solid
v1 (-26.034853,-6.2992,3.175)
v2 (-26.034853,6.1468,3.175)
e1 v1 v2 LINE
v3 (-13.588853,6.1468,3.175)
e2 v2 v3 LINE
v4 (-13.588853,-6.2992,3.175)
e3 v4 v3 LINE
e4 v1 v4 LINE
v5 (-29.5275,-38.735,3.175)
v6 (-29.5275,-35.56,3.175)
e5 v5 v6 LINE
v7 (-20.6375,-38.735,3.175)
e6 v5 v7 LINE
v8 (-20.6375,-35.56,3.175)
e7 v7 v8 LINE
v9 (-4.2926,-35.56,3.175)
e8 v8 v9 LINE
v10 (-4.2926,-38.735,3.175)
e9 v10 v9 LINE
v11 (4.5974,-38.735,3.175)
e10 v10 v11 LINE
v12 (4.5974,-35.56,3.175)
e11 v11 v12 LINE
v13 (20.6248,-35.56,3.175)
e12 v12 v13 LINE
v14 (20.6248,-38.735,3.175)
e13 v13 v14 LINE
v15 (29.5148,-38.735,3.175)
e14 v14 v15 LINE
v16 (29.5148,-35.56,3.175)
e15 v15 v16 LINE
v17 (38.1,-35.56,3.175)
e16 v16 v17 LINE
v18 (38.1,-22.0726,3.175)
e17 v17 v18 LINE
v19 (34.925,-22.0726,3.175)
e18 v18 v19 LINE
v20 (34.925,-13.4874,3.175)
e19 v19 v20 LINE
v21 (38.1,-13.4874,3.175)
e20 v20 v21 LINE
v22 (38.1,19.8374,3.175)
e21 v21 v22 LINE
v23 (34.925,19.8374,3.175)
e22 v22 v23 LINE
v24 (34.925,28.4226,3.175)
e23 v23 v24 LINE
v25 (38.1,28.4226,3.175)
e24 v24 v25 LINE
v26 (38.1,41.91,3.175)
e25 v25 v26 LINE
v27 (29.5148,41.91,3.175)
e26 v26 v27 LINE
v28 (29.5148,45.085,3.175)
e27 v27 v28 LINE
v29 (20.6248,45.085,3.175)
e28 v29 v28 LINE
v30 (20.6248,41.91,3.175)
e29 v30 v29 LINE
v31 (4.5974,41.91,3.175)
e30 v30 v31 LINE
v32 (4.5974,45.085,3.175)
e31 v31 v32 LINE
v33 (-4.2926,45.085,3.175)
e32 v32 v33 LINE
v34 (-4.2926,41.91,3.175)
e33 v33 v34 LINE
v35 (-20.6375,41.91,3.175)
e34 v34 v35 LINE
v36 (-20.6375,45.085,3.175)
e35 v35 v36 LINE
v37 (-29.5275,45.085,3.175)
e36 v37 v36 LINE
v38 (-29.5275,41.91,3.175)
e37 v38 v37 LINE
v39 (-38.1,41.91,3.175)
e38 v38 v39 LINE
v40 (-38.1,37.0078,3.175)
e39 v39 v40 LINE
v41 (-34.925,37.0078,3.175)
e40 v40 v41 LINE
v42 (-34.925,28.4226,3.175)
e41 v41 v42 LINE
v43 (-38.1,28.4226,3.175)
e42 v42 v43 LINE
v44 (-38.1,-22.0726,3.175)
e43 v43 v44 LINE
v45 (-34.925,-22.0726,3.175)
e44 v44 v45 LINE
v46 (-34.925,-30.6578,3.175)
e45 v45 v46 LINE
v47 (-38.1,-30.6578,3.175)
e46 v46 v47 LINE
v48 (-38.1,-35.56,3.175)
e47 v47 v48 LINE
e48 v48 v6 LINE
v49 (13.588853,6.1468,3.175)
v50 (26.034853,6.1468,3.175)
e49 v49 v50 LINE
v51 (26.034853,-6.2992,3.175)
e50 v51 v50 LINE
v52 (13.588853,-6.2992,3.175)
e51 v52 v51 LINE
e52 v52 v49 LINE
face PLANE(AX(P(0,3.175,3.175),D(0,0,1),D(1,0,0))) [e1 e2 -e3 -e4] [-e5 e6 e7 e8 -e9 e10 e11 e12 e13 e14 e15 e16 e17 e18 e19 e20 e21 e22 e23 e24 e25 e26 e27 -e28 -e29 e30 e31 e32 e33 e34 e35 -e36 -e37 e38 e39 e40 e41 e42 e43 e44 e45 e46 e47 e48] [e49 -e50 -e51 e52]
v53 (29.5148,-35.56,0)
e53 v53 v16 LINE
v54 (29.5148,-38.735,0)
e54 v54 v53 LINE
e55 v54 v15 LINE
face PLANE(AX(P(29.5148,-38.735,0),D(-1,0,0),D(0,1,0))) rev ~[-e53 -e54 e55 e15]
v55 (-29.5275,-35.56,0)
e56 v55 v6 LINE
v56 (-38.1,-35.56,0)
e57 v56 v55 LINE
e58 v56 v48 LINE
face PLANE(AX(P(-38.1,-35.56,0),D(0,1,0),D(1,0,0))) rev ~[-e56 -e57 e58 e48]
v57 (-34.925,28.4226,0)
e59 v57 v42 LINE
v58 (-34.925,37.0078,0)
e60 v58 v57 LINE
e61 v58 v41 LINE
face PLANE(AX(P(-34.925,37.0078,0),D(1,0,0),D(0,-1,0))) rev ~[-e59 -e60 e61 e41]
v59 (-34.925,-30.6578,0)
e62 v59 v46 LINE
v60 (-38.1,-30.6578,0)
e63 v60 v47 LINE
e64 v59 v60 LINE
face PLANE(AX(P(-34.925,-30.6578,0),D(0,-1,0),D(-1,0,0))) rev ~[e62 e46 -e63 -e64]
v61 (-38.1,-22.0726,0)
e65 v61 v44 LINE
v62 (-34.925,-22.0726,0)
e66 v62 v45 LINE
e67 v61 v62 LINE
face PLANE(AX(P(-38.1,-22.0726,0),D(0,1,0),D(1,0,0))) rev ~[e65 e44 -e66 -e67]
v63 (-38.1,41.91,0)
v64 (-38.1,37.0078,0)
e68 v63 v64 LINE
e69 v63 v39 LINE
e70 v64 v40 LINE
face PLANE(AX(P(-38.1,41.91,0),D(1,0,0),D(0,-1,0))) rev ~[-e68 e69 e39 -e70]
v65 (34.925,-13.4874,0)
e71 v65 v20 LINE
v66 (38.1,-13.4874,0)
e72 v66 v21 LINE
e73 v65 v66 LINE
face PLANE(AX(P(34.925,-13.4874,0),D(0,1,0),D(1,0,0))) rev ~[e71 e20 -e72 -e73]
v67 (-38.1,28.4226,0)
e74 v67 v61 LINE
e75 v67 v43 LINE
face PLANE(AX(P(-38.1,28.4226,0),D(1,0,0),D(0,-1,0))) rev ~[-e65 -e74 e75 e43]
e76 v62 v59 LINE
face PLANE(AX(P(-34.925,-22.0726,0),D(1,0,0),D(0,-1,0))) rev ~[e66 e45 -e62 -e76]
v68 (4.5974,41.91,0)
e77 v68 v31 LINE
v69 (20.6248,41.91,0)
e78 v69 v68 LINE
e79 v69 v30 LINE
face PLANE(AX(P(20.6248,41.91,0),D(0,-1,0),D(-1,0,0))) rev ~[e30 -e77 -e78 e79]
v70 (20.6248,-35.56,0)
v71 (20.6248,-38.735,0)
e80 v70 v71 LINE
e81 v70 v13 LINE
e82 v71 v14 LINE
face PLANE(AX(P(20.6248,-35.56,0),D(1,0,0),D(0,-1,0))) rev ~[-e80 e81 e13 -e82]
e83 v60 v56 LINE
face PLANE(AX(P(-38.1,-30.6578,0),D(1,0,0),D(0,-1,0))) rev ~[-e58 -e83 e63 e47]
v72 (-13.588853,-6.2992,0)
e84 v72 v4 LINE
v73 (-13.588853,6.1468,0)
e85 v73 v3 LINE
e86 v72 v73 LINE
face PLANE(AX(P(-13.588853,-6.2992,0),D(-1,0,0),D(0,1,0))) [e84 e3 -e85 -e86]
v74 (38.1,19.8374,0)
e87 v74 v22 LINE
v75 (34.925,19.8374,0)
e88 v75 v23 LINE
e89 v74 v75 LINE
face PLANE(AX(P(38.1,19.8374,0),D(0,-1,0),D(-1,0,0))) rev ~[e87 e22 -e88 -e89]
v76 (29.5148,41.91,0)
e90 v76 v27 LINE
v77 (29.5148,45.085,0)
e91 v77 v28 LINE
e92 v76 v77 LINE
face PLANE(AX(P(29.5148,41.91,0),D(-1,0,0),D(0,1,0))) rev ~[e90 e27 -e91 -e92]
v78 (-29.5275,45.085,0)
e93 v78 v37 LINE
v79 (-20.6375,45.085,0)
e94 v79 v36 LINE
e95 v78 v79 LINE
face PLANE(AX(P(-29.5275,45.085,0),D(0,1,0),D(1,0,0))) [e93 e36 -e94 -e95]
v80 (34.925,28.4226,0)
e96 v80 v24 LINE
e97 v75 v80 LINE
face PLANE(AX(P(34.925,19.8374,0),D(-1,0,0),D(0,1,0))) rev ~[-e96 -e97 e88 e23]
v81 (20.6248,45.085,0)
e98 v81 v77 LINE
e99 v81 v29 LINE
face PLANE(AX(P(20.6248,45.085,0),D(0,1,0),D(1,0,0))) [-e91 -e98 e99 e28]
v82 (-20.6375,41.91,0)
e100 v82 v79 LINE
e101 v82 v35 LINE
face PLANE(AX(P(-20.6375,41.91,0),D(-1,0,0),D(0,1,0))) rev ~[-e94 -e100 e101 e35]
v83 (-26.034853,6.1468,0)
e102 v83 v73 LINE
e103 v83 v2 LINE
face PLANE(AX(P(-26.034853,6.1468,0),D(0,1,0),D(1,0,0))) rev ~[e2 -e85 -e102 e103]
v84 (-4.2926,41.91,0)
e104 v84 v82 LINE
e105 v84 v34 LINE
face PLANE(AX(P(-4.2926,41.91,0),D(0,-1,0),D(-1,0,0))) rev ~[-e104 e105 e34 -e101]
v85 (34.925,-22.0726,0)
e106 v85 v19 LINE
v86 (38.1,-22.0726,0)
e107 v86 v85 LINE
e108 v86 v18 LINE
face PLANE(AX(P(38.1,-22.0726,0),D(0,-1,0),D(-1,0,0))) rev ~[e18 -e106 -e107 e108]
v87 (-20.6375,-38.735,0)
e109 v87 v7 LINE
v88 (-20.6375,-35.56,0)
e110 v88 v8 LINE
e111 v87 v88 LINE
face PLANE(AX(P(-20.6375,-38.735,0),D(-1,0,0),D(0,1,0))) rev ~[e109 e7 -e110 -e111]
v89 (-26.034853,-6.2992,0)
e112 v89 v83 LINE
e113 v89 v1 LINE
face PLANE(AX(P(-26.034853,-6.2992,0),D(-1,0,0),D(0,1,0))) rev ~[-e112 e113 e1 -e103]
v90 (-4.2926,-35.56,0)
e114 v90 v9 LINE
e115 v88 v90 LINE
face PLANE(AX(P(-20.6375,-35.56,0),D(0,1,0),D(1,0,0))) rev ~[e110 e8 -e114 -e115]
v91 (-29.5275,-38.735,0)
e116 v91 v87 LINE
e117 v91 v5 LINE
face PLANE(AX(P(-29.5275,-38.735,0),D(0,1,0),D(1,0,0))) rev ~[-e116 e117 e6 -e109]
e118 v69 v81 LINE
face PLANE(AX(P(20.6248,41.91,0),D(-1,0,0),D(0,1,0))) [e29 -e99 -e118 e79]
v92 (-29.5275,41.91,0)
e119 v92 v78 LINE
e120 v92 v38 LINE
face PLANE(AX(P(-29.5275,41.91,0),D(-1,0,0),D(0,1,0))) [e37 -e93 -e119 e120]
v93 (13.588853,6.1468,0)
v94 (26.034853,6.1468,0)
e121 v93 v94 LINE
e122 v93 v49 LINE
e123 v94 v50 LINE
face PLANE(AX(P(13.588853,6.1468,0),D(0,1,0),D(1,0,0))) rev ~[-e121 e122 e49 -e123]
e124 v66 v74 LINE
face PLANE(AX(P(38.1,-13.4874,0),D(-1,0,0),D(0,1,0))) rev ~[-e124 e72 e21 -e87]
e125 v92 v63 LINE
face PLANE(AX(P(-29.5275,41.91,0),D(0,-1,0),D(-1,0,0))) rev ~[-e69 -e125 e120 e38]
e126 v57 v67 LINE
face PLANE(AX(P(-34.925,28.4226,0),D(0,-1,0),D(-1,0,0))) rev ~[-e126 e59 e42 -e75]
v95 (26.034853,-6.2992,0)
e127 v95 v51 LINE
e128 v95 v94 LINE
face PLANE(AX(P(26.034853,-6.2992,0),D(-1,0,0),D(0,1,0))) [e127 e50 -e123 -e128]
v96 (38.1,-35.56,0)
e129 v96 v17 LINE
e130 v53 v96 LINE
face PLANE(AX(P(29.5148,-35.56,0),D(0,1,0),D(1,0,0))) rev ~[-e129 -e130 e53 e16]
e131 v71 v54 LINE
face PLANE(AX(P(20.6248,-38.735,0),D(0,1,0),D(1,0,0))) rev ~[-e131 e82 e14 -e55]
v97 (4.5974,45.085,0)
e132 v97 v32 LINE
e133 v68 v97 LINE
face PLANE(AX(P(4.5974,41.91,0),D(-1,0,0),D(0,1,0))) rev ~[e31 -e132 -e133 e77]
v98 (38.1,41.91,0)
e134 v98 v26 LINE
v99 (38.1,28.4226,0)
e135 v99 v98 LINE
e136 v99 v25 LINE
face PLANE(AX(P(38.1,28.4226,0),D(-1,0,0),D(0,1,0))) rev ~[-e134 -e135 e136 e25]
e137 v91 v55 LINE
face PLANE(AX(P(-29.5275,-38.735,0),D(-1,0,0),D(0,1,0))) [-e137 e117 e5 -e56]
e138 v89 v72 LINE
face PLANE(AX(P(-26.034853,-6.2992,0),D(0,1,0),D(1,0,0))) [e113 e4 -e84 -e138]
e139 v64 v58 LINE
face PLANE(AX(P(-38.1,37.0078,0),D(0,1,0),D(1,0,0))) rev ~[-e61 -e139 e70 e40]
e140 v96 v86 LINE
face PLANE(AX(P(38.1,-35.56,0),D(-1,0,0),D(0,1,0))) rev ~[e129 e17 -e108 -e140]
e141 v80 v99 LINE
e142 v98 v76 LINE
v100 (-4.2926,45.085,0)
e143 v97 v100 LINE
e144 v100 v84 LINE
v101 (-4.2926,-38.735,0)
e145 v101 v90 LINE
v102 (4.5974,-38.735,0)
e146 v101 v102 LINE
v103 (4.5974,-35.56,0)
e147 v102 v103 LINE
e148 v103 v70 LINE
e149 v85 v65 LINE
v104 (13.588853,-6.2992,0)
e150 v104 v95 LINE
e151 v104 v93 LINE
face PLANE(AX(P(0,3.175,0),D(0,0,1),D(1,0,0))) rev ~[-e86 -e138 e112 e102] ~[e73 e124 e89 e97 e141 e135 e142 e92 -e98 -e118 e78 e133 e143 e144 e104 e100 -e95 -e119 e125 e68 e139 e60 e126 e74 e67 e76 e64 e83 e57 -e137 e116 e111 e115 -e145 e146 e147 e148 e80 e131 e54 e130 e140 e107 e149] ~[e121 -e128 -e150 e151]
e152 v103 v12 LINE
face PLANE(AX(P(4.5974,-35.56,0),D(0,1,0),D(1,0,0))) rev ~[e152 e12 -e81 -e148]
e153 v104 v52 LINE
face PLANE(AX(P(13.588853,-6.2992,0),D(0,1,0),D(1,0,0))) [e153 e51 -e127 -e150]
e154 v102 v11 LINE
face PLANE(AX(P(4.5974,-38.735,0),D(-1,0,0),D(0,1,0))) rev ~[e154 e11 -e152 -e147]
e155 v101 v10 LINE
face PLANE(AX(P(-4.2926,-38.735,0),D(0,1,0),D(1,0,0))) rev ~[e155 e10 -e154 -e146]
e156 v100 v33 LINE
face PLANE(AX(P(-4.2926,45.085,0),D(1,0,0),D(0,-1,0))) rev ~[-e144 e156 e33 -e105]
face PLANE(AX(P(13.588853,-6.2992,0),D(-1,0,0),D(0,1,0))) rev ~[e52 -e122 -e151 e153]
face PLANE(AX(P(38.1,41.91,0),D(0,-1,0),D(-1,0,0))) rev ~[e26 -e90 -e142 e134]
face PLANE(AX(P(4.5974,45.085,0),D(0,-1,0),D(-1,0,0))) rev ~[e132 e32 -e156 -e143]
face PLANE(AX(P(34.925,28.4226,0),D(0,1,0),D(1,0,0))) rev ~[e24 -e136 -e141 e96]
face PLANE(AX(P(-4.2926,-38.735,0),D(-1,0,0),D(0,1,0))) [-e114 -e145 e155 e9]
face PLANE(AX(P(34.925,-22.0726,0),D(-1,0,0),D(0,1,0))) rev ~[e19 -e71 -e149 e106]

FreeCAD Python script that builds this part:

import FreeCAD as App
import Part
import Sketcher
from FreeCAD import Vector
Q = App.Units.Quantity

doc = App.newDocument("Part")
params = doc.addObject("Spreadsheet::Sheet", "Params")
for row, (alias, value) in enumerate([
    ("sketch1_width", "0.35 in"),
    ("sketch1_width2", "0.49 in"),
    ("sketch1_width3", "0.125 in"),
    ("sketch1_width4", "0.631 in"),
    ("sketch1_width5", "0.338 in"),
    ("pad1_length", "0.125 in"),
], start=1):
    params.set(f"A{row}", alias)
    params.set(f"B{row}", "=" + value)
    params.setAlias(f"B{row}", alias)

body = doc.addObject("PartDesign::Body", "Body")

sketch1 = doc.addObject("Sketcher::SketchObject", "Sketch")
body.addObject(sketch1)
sketch1.AttachmentSupport = (doc.XY_Plane, [""])
sketch1.MapMode = "FlatFace"
sketch1.addGeometry([
    Part.LineSegment(Vector(-38.1, 41.9, 0), Vector(-38.1, 37, 0)),
    Part.LineSegment(Vector(-38.1, 37, 0), Vector(-34.9, 37, 0)),
    Part.LineSegment(Vector(-34.9, 37, 0), Vector(-34.9, 28.4, 0)),
    Part.LineSegment(Vector(-34.9, 28.4, 0), Vector(-38.1, 28.4, 0)),
    Part.LineSegment(Vector(-38.1, 28.4, 0), Vector(-38.1, -22.1, 0)),
    Part.LineSegment(Vector(-38.1, -22.1, 0), Vector(-34.9, -22.1, 0)),
    Part.LineSegment(Vector(-34.9, -22.1, 0), Vector(-34.9, -30.7, 0)),
    Part.LineSegment(Vector(-34.9, -30.7, 0), Vector(-38.1, -30.7, 0)),
    Part.LineSegment(Vector(-38.1, -30.7, 0), Vector(-38.1, -35.6, 0)),
    Part.LineSegment(Vector(-38.1, -35.6, 0), Vector(-29.5, -35.6, 0)),
    Part.LineSegment(Vector(-29.5, -35.6, 0), Vector(-29.5, -38.7, 0)),
    Part.LineSegment(Vector(-29.5, -38.7, 0), Vector(-20.6, -38.7, 0)),
    Part.LineSegment(Vector(-20.6, -38.7, 0), Vector(-20.6, -35.6, 0)),
    Part.LineSegment(Vector(-20.6, -35.6, 0), Vector(-4.3, -35.6, 0)),
    Part.LineSegment(Vector(-4.3, -35.6, 0), Vector(-4.3, -38.7, 0)),
    Part.LineSegment(Vector(-4.3, -38.7, 0), Vector(4.6, -38.7, 0)),
    Part.LineSegment(Vector(4.6, -38.7, 0), Vector(4.6, -35.6, 0)),
    Part.LineSegment(Vector(4.6, -35.6, 0), Vector(20.6, -35.6, 0)),
    Part.LineSegment(Vector(20.6, -35.6, 0), Vector(20.6, -38.7, 0)),
    Part.LineSegment(Vector(20.6, -38.7, 0), Vector(29.5, -38.7, 0)),
    Part.LineSegment(Vector(29.5, -38.7, 0), Vector(29.5, -35.6, 0)),
    Part.LineSegment(Vector(29.5, -35.6, 0), Vector(38.1, -35.6, 0)),
    Part.LineSegment(Vector(38.1, -35.6, 0), Vector(38.1, -22.1, 0)),
    Part.LineSegment(Vector(38.1, -22.1, 0), Vector(34.9, -22.1, 0)),
    Part.LineSegment(Vector(34.9, -22.1, 0), Vector(34.9, -13.5, 0)),
    Part.LineSegment(Vector(34.9, -13.5, 0), Vector(38.1, -13.5, 0)),
    Part.LineSegment(Vector(38.1, -13.5, 0), Vector(38.1, 19.8, 0)),
    Part.LineSegment(Vector(38.1, 19.8, 0), Vector(34.9, 19.8, 0)),
    Part.LineSegment(Vector(34.9, 19.8, 0), Vector(34.9, 28.4, 0)),
    Part.LineSegment(Vector(34.9, 28.4, 0), Vector(38.1, 28.4, 0)),
    Part.LineSegment(Vector(38.1, 28.4, 0), Vector(38.1, 41.9, 0)),
    Part.LineSegment(Vector(38.1, 41.9, 0), Vector(29.5, 41.9, 0)),
    Part.LineSegment(Vector(29.5, 41.9, 0), Vector(29.5, 45.1, 0)),
    Part.LineSegment(Vector(29.5, 45.1, 0), Vector(20.6, 45.1, 0)),
    Part.LineSegment(Vector(20.6, 45.1, 0), Vector(20.6, 41.9, 0)),
    Part.LineSegment(Vector(20.6, 41.9, 0), Vector(4.6, 41.9, 0)),
    Part.LineSegment(Vector(4.6, 41.9, 0), Vector(4.6, 45.1, 0)),
    Part.LineSegment(Vector(4.6, 45.1, 0), Vector(-4.3, 45.1, 0)),
    Part.LineSegment(Vector(-4.3, 45.1, 0), Vector(-4.3, 41.9, 0)),
    Part.LineSegment(Vector(-4.3, 41.9, 0), Vector(-20.6, 41.9, 0)),
    Part.LineSegment(Vector(-20.6, 41.9, 0), Vector(-20.6, 45.1, 0)),
    Part.LineSegment(Vector(-20.6, 45.1, 0), Vector(-29.5, 45.1, 0)),
    Part.LineSegment(Vector(-29.5, 45.1, 0), Vector(-29.5, 41.9, 0)),
    Part.LineSegment(Vector(-29.5, 41.9, 0), Vector(-38.1, 41.9, 0)),
    Part.LineSegment(Vector(-13.6, -6.3, 0), Vector(-26, -6.3, 0)),
    Part.LineSegment(Vector(-26, -6.3, 0), Vector(-26, 6.1, 0)),
    Part.LineSegment(Vector(-26, 6.1, 0), Vector(-13.6, 6.1, 0)),
    Part.LineSegment(Vector(-13.6, 6.1, 0), Vector(-13.6, -6.3, 0)),
    Part.LineSegment(Vector(26, -6.3, 0), Vector(13.6, -6.3, 0)),
    Part.LineSegment(Vector(13.6, -6.3, 0), Vector(13.6, 6.1, 0)),
    Part.LineSegment(Vector(13.6, 6.1, 0), Vector(26, 6.1, 0)),
    Part.LineSegment(Vector(26, 6.1, 0), Vector(26, -6.3, 0)),
], False)
sketch1.addConstraint([
    Sketcher.Constraint("Coincident", 0, 2, 1, 1),
    Sketcher.Constraint("Coincident", 1, 2, 2, 1),
    Sketcher.Constraint("Coincident", 2, 2, 3, 1),
    Sketcher.Constraint("Coincident", 3, 2, 4, 1),
    Sketcher.Constraint("Coincident", 4, 2, 5, 1),
    Sketcher.Constraint("Coincident", 5, 2, 6, 1),
    Sketcher.Constraint("Coincident", 6, 2, 7, 1),
    Sketcher.Constraint("Coincident", 7, 2, 8, 1),
    Sketcher.Constraint("Coincident", 8, 2, 9, 1),
    Sketcher.Constraint("Coincident", 9, 2, 10, 1),
    Sketcher.Constraint("Coincident", 10, 2, 11, 1),
    Sketcher.Constraint("Coincident", 11, 2, 12, 1),
    Sketcher.Constraint("Coincident", 12, 2, 13, 1),
    Sketcher.Constraint("Coincident", 13, 2, 14, 1),
    Sketcher.Constraint("Coincident", 14, 2, 15, 1),
    Sketcher.Constraint("Coincident", 15, 2, 16, 1),
    Sketcher.Constraint("Coincident", 16, 2, 17, 1),
    Sketcher.Constraint("Coincident", 17, 2, 18, 1),
    Sketcher.Constraint("Coincident", 18, 2, 19, 1),
    Sketcher.Constraint("Coincident", 19, 2, 20, 1),
    Sketcher.Constraint("Coincident", 20, 2, 21, 1),
    Sketcher.Constraint("Coincident", 21, 2, 22, 1),
    Sketcher.Constraint("Coincident", 22, 2, 23, 1),
    Sketcher.Constraint("Coincident", 23, 2, 24, 1),
    Sketcher.Constraint("Coincident", 24, 2, 25, 1),
    Sketcher.Constraint("Coincident", 25, 2, 26, 1),
    Sketcher.Constraint("Coincident", 26, 2, 27, 1),
    Sketcher.Constraint("Coincident", 27, 2, 28, 1),
    Sketcher.Constraint("Coincident", 28, 2, 29, 1),
    Sketcher.Constraint("Coincident", 29, 2, 30, 1),
    Sketcher.Constraint("Coincident", 30, 2, 31, 1),
    Sketcher.Constraint("Coincident", 31, 2, 32, 1),
    Sketcher.Constraint("Coincident", 32, 2, 33, 1),
    Sketcher.Constraint("Coincident", 33, 2, 34, 1),
    Sketcher.Constraint("Coincident", 34, 2, 35, 1),
    Sketcher.Constraint("Coincident", 35, 2, 36, 1),
    Sketcher.Constraint("Coincident", 36, 2, 37, 1),
    Sketcher.Constraint("Coincident", 37, 2, 38, 1),
    Sketcher.Constraint("Coincident", 38, 2, 39, 1),
    Sketcher.Constraint("Coincident", 39, 2, 40, 1),
    Sketcher.Constraint("Coincident", 40, 2, 41, 1),
    Sketcher.Constraint("Coincident", 41, 2, 42, 1),
    Sketcher.Constraint("Coincident", 42, 2, 43, 1),
    Sketcher.Constraint("Coincident", 43, 2, 0, 1),
    Sketcher.Constraint("Coincident", 44, 2, 45, 1),
    Sketcher.Constraint("Coincident", 45, 2, 46, 1),
    Sketcher.Constraint("Coincident", 46, 2, 47, 1),
    Sketcher.Constraint("Coincident", 47, 2, 44, 1),
    Sketcher.Constraint("Coincident", 48, 2, 49, 1),
    Sketcher.Constraint("Coincident", 49, 2, 50, 1),
    Sketcher.Constraint("Coincident", 50, 2, 51, 1),
    Sketcher.Constraint("Coincident", 51, 2, 48, 1),
    Sketcher.Constraint("Vertical", 0),
    Sketcher.Constraint("Horizontal", 1),
    Sketcher.Constraint("Vertical", 2),
    Sketcher.Constraint("Horizontal", 3),
    Sketcher.Constraint("Vertical", 4),
    Sketcher.Constraint("Horizontal", 5),
    Sketcher.Constraint("Vertical", 6),
    Sketcher.Constraint("Horizontal", 7),
    Sketcher.Constraint("Vertical", 8),
    Sketcher.Constraint("Horizontal", 9),
    Sketcher.Constraint("Vertical", 10),
    Sketcher.Constraint("Horizontal", 11),
    Sketcher.Constraint("Vertical", 12),
    Sketcher.Constraint("Horizontal", 13),
    Sketcher.Constraint("Vertical", 14),
    Sketcher.Constraint("Horizontal", 15),
    Sketcher.Constraint("Vertical", 16),
    Sketcher.Constraint("Horizontal", 17),
    Sketcher.Constraint("Vertical", 18),
    Sketcher.Constraint("Horizontal", 19),
    Sketcher.Constraint("Vertical", 20),
    Sketcher.Constraint("Horizontal", 21),
    Sketcher.Constraint("Vertical", 22),
    Sketcher.Constraint("Horizontal", 23),
    Sketcher.Constraint("Vertical", 24),
    Sketcher.Constraint("Horizontal", 25),
    Sketcher.Constraint("Vertical", 26),
    Sketcher.Constraint("Horizontal", 27),
    Sketcher.Constraint("Vertical", 28),
    Sketcher.Constraint("Horizontal", 29),
    Sketcher.Constraint("Vertical", 30),
    Sketcher.Constraint("Horizontal", 31),
    Sketcher.Constraint("Vertical", 32),
    Sketcher.Constraint("Horizontal", 33),
    Sketcher.Constraint("Vertical", 34),
    Sketcher.Constraint("Horizontal", 35),
    Sketcher.Constraint("Vertical", 36),
    Sketcher.Constraint("Horizontal", 37),
    Sketcher.Constraint("Vertical", 38),
    Sketcher.Constraint("Horizontal", 39),
    Sketcher.Constraint("Vertical", 40),
    Sketcher.Constraint("Horizontal", 41),
    Sketcher.Constraint("Vertical", 42),
    Sketcher.Constraint("Horizontal", 43),
    Sketcher.Constraint("Horizontal", 44),
    Sketcher.Constraint("Vertical", 45),
    Sketcher.Constraint("Horizontal", 46),
    Sketcher.Constraint("Vertical", 47),
    Sketcher.Constraint("Horizontal", 48),
    Sketcher.Constraint("Vertical", 49),
    Sketcher.Constraint("Horizontal", 50),
    Sketcher.Constraint("Vertical", 51),
    Sketcher.Constraint("Symmetric", 8, 2, 21, 2, -2),
    Sketcher.Constraint("Symmetric", 4, 2, 22, 2, -2),
    Sketcher.Constraint("Symmetric", 2, 2, 28, 2, -2),
    Sketcher.Constraint("Symmetric", 30, 2, 43, 2, -2),
    Sketcher.Constraint("Symmetric", 47, 2, 48, 2, -2),
    Sketcher.Constraint("Symmetric", 45, 2, 50, 2, -2),
    Sketcher.Constraint("Horizontal", 9, 2, 12, 2),
    Sketcher.Constraint("Horizontal", 11, 2, 14, 2),
    Sketcher.Constraint("Horizontal", 13, 2, 16, 2),
    Sketcher.Constraint("Horizontal", 15, 2, 18, 2),
    Sketcher.Constraint("Horizontal", 31, 2, 34, 2),
    Sketcher.Constraint("Horizontal", 33, 2, 36, 2),
    Sketcher.Constraint("Horizontal", 35, 2, 38, 2),
    Sketcher.Constraint("Horizontal", 37, 2, 40, 2),
    Sketcher.Constraint("Vertical", 0, 2, 3, 2),
    Sketcher.Constraint("Vertical", 2, 2, 5, 2),
    Sketcher.Constraint("Vertical", 22, 2, 25, 2),
    Sketcher.Constraint("Vertical", 24, 2, 27, 2),
    Sketcher.Constraint("Vertical", 20, 2, 31, 2),
    Sketcher.Constraint("Vertical", 18, 2, 33, 2),
    Sketcher.Constraint("Vertical", 16, 2, 35, 2),
    Sketcher.Constraint("Vertical", 14, 2, 37, 2),
    Sketcher.Constraint("Vertical", 12, 2, 39, 2),
    Sketcher.Constraint("Vertical", 10, 2, 41, 2),
    Sketcher.Constraint("Equal", 11, 15),
    Sketcher.Constraint("Equal", 15, 19),
    Sketcher.Constraint("Equal", 31, 2),
    Sketcher.Constraint("Equal", 2, 6),
    Sketcher.Constraint("Equal", 0, 8),
    Sketcher.Constraint("Equal", 29, 10),
    Sketcher.Constraint("Equal", 6, 24),
    Sketcher.Constraint("Equal", 24, 28),
    Sketcher.Constraint("Equal", 20, 32),
    Sketcher.Constraint("Equal", 50, 45),
    Sketcher.Constraint("DistanceX", 11, 1, 11, 2, Q("0.35 in")),
    Sketcher.Constraint("DistanceX", 44, 2, 44, 1, Q("0.49 in")),
    Sketcher.Constraint("DistanceX", 0, 2, -1, 1, Q("1.5 in")),
    Sketcher.Constraint("DistanceY", 8, 2, -1, 1, Q("1.4 in")),
    Sketcher.Constraint("DistanceX", 1, 1, 1, 2, Q("0.125 in")),
    Sketcher.Constraint("DistanceX", 17, 1, 17, 2, Q("0.631 in")),
    Sketcher.Constraint("DistanceX", 21, 1, 21, 2, Q("0.338 in")),
    Sketcher.Constraint("DistanceY", 0, 2, 0, 1, Q("0.193 in")),
    Sketcher.Constraint("DistanceY", 4, 2, 4, 1, Q("1.988 in")),
    Sketcher.Constraint("DistanceX", 9, 1, 9, 2, Q("0.3375 in")),
    Sketcher.Constraint("DistanceY", 44, 2, -1, 1, Q("0.248 in")),
    Sketcher.Constraint("DistanceX", 44, 2, -1, 1, 26.034853),
])
sketch1.setExpression("Constraints[138]", "Params.sketch1_width")
sketch1.setExpression("Constraints[139]", "Params.sketch1_width2")
sketch1.setExpression("Constraints[142]", "Params.sketch1_width3")
sketch1.setExpression("Constraints[143]", "Params.sketch1_width4")
sketch1.setExpression("Constraints[144]", "Params.sketch1_width5")
pad1 = doc.addObject("PartDesign::Pad", "Pad")
body.addObject(pad1)
pad1.Profile = sketch1
pad1.setExpression("Length", "Params.pad1_length")

doc.recompute()
